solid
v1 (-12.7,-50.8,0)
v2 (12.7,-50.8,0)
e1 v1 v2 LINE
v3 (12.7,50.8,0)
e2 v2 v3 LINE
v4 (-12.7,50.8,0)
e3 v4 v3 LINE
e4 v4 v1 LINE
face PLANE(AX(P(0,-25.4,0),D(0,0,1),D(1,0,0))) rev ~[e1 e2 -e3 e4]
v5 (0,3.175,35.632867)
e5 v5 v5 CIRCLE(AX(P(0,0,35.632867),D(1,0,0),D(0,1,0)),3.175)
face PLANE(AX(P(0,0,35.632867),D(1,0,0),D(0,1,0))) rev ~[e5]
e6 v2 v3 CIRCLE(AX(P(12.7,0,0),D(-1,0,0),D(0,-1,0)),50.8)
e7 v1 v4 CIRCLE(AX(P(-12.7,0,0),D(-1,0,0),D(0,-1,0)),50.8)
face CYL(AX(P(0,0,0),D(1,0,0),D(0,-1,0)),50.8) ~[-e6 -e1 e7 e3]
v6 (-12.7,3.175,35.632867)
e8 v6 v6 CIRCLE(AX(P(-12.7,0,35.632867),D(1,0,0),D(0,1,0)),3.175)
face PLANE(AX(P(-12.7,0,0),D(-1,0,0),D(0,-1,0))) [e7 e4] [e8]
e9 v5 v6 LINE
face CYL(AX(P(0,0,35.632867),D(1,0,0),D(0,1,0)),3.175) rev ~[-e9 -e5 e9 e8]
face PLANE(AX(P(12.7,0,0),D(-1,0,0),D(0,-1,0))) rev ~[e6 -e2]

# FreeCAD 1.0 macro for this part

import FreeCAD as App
import Part
import Sketcher
from FreeCAD import Vector
Q = App.Units.Quantity


def add_polygon(sketch, points):
    """Adds a closed chain of lines whose ends are joined by coincident constraints."""
    first, n = sketch.GeometryCount, len(points)
    for a, b in zip(points, points[1:] + points[:1]):
        sketch.addGeometry(Part.LineSegment(App.Vector(*a, 0), App.Vector(*b, 0)), False)
    for i in range(n):
        sketch.addConstraint(Sketcher.Constraint("Coincident", first + i, 2, first + (i + 1) % n, 1))

doc = App.newDocument("Part")
body = doc.addObject("PartDesign::Body", "Body")

# Sketch on XY plane
sketch1 = doc.addObject("Sketcher::SketchObject", "Sketch")
body.addObject(sketch1)
sketch1.AttachmentSupport = (doc.XY_Plane, [""])
sketch1.MapMode = "FlatFace"
add_polygon(sketch1, [(-13, 0), (-13, -51), (13, -51), (13, 0)])  # lines 0-3
sketch1.addConstraint(Sketcher.Constraint("Vertical", 0))
sketch1.addConstraint(Sketcher.Constraint("Horizontal", 1))
sketch1.addConstraint(Sketcher.Constraint("Vertical", 2))
sketch1.addConstraint(Sketcher.Constraint("Horizontal", 3))
sketch1.addConstraint(Sketcher.Constraint("Symmetric", 2, 2, 3, 2, -1, 1))
sketch1.addConstraint(Sketcher.Constraint("DistanceX", 1, 1, 1, 2, Q("1 in")))
sketch1.addConstraint(Sketcher.Constraint("DistanceY", 0, 2, 0, 1, Q("2 in")))
revolution = doc.addObject("PartDesign::Revolution", "Revolution")
body.addObject(revolution)
revolution.Profile = sketch1
revolution.ReferenceAxis = (sketch1, ["H_Axis"])
revolution.Angle = 180
revolution.Reversed = True

# Sketch on YZ plane
sketch2 = doc.addObject("Sketcher::SketchObject", "Sketch001")
body.addObject(sketch2)
sketch2.AttachmentSupport = (doc.YZ_Plane, [""])
sketch2.MapMode = "FlatFace"
sketch2.addGeometry(Part.Circle(Vector(0, 35.6, 0), Vector(0, 0, 1), 3.2), False)
sketch2.addConstraint(Sketcher.Constraint("PointOnObject", 0, 3, -2))
sketch2.addConstraint(Sketcher.Constraint("Diameter", 0, Q("0.25 in")))
sketch2.addConstraint(Sketcher.Constraint("DistanceY", -1, 1, 0, 3, Q("35.632867 mm")))
pocket1 = doc.addObject("PartDesign::Pocket", "Pocket")
body.addObject(pocket1)
pocket1.Profile = sketch2
pocket1.Type = "ThroughAll"

doc.recompute()
